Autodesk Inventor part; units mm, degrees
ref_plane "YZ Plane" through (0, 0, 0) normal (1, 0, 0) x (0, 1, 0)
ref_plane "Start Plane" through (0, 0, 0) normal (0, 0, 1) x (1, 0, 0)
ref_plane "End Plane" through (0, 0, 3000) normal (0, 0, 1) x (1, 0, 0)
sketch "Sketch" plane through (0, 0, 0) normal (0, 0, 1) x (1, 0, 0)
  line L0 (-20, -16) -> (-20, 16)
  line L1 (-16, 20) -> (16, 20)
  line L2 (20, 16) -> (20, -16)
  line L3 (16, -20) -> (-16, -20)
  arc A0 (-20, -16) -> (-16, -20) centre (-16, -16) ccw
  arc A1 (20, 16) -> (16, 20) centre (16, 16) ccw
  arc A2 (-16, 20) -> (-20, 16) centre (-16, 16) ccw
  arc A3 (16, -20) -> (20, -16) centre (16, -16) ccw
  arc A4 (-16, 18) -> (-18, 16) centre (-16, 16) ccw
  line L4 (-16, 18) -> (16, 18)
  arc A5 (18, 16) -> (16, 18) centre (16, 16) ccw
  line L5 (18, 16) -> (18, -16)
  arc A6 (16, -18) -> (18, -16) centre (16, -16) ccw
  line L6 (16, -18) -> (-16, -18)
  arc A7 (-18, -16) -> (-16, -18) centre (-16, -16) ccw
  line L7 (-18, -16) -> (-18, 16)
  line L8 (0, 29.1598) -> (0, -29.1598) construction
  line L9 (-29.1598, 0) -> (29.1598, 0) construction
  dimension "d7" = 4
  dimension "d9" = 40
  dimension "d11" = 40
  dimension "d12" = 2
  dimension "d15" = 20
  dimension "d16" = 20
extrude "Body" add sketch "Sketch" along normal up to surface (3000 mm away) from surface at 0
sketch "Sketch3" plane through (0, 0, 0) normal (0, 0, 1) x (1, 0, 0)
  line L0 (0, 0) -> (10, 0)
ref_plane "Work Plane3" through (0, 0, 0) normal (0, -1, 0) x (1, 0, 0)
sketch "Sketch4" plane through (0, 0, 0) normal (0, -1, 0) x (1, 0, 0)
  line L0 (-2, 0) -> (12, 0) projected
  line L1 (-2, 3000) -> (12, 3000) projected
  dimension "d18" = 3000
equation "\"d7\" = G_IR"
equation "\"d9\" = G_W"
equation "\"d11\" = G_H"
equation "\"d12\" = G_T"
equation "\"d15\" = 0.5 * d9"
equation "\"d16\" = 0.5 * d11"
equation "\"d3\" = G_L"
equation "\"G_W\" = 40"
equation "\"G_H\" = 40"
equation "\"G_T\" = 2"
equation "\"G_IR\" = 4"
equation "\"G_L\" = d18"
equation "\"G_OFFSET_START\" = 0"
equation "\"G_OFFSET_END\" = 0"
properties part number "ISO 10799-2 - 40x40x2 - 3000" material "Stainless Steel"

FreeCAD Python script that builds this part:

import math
import FreeCAD as App
import Part
import Sketcher
Q = App.Units.Quantity

doc = App.newDocument("Part")
body = doc.addObject("PartDesign::Body", "Body")

# Sketch on XY plane
sketch1 = doc.addObject("Sketcher::SketchObject", "Sketch")
body.addObject(sketch1)
sketch1.AttachmentSupport = (doc.XY_Plane, [""])
sketch1.MapMode = "FlatFace"
sketch1.addGeometry([
    Part.LineSegment(App.Vector(-20, 16, 0), App.Vector(-20, -16, 0)),  # 0
    Part.ArcOfCircle(Part.Circle(App.Vector(-16, -16, 0), App.Vector(0, 0, 1), 4), math.radians(180), math.radians(270)),  # 1
    Part.LineSegment(App.Vector(-16, -20, 0), App.Vector(16, -20, 0)),  # 2
    Part.ArcOfCircle(Part.Circle(App.Vector(16, -16, 0), App.Vector(0, 0, 1), 4), math.radians(-90), math.radians(0)),  # 3
    Part.LineSegment(App.Vector(20, -16, 0), App.Vector(20, 16, 0)),  # 4
    Part.ArcOfCircle(Part.Circle(App.Vector(16, 16, 0), App.Vector(0, 0, 1), 4), math.radians(0), math.radians(90)),  # 5
    Part.LineSegment(App.Vector(16, 20, 0), App.Vector(-16, 20, 0)),  # 6
    Part.ArcOfCircle(Part.Circle(App.Vector(-16, 16, 0), App.Vector(0, 0, 1), 4), math.radians(90), math.radians(180)),  # 7
    Part.ArcOfCircle(Part.Circle(App.Vector(-16, 16, 0), App.Vector(0, 0, 1), 2), math.radians(90), math.radians(180)),  # 8
    Part.LineSegment(App.Vector(-16, 18, 0), App.Vector(16, 18, 0)),  # 9
    Part.ArcOfCircle(Part.Circle(App.Vector(16, 16, 0), App.Vector(0, 0, 1), 2), math.radians(0), math.radians(90)),  # 10
    Part.LineSegment(App.Vector(18, 16, 0), App.Vector(18, -16, 0)),  # 11
    Part.ArcOfCircle(Part.Circle(App.Vector(16, -16, 0), App.Vector(0, 0, 1), 2), math.radians(-90), math.radians(0)),  # 12
    Part.LineSegment(App.Vector(16, -18, 0), App.Vector(-16, -18, 0)),  # 13
    Part.ArcOfCircle(Part.Circle(App.Vector(-16, -16, 0), App.Vector(0, 0, 1), 2), math.radians(180), math.radians(270)),  # 14
    Part.LineSegment(App.Vector(-18, -16, 0), App.Vector(-18, 16, 0)),  # 15
], False)
sketch1.addConstraint([
    Sketcher.Constraint("Tangent", 0, 2, 1, 1),
    Sketcher.Constraint("Tangent", 1, 2, 2, 1),
    Sketcher.Constraint("Tangent", 2, 2, 3, 1),
    Sketcher.Constraint("Tangent", 3, 2, 4, 1),
    Sketcher.Constraint("Tangent", 4, 2, 5, 1),
    Sketcher.Constraint("Tangent", 5, 2, 6, 1),
    Sketcher.Constraint("Tangent", 6, 2, 7, 1),
    Sketcher.Constraint("Tangent", 7, 2, 0, 1),
    Sketcher.Constraint("Tangent", 8, 1, 9, 1),
    Sketcher.Constraint("Tangent", 9, 2, 10, 2),
    Sketcher.Constraint("Tangent", 10, 1, 11, 1),
    Sketcher.Constraint("Tangent", 11, 2, 12, 2),
    Sketcher.Constraint("Tangent", 12, 1, 13, 1),
    Sketcher.Constraint("Tangent", 13, 2, 14, 2),
    Sketcher.Constraint("Tangent", 14, 1, 15, 1),
    Sketcher.Constraint("Tangent", 15, 2, 8, 2),
    Sketcher.Constraint("Vertical", 0),
    Sketcher.Constraint("Horizontal", 2),
    Sketcher.Constraint("Vertical", 4),
    Sketcher.Constraint("Horizontal", 6),
    Sketcher.Constraint("Horizontal", 9),
    Sketcher.Constraint("Vertical", 11),
    Sketcher.Constraint("Horizontal", 13),
    Sketcher.Constraint("Vertical", 15),
    Sketcher.Constraint("Coincident", 8, 3, 7, 3),
    Sketcher.Constraint("Coincident", 10, 3, 5, 3),
    Sketcher.Constraint("Coincident", 12, 3, 3, 3),
    Sketcher.Constraint("Equal", 1, 3),
    Sketcher.Constraint("Equal", 3, 5),
    Sketcher.Constraint("Equal", 5, 7),
    Sketcher.Constraint("Equal", 12, 14),
    Sketcher.Constraint("Symmetric", 1, 3, 5, 3, -1, 1),
    Sketcher.Constraint("Equal", 13, 0),
    Sketcher.Constraint("Radius", 1, Q("4 mm")),
    Sketcher.Constraint("Radius", 8, Q("2 mm")),
    Sketcher.Constraint("DistanceX", 0, 2, -1, 1, Q("20 mm")),
])
pad1 = doc.addObject("PartDesign::Pad", "Pad")
body.addObject(pad1)
pad1.Profile = sketch1
pad1.Length = 3000

doc.recompute()
